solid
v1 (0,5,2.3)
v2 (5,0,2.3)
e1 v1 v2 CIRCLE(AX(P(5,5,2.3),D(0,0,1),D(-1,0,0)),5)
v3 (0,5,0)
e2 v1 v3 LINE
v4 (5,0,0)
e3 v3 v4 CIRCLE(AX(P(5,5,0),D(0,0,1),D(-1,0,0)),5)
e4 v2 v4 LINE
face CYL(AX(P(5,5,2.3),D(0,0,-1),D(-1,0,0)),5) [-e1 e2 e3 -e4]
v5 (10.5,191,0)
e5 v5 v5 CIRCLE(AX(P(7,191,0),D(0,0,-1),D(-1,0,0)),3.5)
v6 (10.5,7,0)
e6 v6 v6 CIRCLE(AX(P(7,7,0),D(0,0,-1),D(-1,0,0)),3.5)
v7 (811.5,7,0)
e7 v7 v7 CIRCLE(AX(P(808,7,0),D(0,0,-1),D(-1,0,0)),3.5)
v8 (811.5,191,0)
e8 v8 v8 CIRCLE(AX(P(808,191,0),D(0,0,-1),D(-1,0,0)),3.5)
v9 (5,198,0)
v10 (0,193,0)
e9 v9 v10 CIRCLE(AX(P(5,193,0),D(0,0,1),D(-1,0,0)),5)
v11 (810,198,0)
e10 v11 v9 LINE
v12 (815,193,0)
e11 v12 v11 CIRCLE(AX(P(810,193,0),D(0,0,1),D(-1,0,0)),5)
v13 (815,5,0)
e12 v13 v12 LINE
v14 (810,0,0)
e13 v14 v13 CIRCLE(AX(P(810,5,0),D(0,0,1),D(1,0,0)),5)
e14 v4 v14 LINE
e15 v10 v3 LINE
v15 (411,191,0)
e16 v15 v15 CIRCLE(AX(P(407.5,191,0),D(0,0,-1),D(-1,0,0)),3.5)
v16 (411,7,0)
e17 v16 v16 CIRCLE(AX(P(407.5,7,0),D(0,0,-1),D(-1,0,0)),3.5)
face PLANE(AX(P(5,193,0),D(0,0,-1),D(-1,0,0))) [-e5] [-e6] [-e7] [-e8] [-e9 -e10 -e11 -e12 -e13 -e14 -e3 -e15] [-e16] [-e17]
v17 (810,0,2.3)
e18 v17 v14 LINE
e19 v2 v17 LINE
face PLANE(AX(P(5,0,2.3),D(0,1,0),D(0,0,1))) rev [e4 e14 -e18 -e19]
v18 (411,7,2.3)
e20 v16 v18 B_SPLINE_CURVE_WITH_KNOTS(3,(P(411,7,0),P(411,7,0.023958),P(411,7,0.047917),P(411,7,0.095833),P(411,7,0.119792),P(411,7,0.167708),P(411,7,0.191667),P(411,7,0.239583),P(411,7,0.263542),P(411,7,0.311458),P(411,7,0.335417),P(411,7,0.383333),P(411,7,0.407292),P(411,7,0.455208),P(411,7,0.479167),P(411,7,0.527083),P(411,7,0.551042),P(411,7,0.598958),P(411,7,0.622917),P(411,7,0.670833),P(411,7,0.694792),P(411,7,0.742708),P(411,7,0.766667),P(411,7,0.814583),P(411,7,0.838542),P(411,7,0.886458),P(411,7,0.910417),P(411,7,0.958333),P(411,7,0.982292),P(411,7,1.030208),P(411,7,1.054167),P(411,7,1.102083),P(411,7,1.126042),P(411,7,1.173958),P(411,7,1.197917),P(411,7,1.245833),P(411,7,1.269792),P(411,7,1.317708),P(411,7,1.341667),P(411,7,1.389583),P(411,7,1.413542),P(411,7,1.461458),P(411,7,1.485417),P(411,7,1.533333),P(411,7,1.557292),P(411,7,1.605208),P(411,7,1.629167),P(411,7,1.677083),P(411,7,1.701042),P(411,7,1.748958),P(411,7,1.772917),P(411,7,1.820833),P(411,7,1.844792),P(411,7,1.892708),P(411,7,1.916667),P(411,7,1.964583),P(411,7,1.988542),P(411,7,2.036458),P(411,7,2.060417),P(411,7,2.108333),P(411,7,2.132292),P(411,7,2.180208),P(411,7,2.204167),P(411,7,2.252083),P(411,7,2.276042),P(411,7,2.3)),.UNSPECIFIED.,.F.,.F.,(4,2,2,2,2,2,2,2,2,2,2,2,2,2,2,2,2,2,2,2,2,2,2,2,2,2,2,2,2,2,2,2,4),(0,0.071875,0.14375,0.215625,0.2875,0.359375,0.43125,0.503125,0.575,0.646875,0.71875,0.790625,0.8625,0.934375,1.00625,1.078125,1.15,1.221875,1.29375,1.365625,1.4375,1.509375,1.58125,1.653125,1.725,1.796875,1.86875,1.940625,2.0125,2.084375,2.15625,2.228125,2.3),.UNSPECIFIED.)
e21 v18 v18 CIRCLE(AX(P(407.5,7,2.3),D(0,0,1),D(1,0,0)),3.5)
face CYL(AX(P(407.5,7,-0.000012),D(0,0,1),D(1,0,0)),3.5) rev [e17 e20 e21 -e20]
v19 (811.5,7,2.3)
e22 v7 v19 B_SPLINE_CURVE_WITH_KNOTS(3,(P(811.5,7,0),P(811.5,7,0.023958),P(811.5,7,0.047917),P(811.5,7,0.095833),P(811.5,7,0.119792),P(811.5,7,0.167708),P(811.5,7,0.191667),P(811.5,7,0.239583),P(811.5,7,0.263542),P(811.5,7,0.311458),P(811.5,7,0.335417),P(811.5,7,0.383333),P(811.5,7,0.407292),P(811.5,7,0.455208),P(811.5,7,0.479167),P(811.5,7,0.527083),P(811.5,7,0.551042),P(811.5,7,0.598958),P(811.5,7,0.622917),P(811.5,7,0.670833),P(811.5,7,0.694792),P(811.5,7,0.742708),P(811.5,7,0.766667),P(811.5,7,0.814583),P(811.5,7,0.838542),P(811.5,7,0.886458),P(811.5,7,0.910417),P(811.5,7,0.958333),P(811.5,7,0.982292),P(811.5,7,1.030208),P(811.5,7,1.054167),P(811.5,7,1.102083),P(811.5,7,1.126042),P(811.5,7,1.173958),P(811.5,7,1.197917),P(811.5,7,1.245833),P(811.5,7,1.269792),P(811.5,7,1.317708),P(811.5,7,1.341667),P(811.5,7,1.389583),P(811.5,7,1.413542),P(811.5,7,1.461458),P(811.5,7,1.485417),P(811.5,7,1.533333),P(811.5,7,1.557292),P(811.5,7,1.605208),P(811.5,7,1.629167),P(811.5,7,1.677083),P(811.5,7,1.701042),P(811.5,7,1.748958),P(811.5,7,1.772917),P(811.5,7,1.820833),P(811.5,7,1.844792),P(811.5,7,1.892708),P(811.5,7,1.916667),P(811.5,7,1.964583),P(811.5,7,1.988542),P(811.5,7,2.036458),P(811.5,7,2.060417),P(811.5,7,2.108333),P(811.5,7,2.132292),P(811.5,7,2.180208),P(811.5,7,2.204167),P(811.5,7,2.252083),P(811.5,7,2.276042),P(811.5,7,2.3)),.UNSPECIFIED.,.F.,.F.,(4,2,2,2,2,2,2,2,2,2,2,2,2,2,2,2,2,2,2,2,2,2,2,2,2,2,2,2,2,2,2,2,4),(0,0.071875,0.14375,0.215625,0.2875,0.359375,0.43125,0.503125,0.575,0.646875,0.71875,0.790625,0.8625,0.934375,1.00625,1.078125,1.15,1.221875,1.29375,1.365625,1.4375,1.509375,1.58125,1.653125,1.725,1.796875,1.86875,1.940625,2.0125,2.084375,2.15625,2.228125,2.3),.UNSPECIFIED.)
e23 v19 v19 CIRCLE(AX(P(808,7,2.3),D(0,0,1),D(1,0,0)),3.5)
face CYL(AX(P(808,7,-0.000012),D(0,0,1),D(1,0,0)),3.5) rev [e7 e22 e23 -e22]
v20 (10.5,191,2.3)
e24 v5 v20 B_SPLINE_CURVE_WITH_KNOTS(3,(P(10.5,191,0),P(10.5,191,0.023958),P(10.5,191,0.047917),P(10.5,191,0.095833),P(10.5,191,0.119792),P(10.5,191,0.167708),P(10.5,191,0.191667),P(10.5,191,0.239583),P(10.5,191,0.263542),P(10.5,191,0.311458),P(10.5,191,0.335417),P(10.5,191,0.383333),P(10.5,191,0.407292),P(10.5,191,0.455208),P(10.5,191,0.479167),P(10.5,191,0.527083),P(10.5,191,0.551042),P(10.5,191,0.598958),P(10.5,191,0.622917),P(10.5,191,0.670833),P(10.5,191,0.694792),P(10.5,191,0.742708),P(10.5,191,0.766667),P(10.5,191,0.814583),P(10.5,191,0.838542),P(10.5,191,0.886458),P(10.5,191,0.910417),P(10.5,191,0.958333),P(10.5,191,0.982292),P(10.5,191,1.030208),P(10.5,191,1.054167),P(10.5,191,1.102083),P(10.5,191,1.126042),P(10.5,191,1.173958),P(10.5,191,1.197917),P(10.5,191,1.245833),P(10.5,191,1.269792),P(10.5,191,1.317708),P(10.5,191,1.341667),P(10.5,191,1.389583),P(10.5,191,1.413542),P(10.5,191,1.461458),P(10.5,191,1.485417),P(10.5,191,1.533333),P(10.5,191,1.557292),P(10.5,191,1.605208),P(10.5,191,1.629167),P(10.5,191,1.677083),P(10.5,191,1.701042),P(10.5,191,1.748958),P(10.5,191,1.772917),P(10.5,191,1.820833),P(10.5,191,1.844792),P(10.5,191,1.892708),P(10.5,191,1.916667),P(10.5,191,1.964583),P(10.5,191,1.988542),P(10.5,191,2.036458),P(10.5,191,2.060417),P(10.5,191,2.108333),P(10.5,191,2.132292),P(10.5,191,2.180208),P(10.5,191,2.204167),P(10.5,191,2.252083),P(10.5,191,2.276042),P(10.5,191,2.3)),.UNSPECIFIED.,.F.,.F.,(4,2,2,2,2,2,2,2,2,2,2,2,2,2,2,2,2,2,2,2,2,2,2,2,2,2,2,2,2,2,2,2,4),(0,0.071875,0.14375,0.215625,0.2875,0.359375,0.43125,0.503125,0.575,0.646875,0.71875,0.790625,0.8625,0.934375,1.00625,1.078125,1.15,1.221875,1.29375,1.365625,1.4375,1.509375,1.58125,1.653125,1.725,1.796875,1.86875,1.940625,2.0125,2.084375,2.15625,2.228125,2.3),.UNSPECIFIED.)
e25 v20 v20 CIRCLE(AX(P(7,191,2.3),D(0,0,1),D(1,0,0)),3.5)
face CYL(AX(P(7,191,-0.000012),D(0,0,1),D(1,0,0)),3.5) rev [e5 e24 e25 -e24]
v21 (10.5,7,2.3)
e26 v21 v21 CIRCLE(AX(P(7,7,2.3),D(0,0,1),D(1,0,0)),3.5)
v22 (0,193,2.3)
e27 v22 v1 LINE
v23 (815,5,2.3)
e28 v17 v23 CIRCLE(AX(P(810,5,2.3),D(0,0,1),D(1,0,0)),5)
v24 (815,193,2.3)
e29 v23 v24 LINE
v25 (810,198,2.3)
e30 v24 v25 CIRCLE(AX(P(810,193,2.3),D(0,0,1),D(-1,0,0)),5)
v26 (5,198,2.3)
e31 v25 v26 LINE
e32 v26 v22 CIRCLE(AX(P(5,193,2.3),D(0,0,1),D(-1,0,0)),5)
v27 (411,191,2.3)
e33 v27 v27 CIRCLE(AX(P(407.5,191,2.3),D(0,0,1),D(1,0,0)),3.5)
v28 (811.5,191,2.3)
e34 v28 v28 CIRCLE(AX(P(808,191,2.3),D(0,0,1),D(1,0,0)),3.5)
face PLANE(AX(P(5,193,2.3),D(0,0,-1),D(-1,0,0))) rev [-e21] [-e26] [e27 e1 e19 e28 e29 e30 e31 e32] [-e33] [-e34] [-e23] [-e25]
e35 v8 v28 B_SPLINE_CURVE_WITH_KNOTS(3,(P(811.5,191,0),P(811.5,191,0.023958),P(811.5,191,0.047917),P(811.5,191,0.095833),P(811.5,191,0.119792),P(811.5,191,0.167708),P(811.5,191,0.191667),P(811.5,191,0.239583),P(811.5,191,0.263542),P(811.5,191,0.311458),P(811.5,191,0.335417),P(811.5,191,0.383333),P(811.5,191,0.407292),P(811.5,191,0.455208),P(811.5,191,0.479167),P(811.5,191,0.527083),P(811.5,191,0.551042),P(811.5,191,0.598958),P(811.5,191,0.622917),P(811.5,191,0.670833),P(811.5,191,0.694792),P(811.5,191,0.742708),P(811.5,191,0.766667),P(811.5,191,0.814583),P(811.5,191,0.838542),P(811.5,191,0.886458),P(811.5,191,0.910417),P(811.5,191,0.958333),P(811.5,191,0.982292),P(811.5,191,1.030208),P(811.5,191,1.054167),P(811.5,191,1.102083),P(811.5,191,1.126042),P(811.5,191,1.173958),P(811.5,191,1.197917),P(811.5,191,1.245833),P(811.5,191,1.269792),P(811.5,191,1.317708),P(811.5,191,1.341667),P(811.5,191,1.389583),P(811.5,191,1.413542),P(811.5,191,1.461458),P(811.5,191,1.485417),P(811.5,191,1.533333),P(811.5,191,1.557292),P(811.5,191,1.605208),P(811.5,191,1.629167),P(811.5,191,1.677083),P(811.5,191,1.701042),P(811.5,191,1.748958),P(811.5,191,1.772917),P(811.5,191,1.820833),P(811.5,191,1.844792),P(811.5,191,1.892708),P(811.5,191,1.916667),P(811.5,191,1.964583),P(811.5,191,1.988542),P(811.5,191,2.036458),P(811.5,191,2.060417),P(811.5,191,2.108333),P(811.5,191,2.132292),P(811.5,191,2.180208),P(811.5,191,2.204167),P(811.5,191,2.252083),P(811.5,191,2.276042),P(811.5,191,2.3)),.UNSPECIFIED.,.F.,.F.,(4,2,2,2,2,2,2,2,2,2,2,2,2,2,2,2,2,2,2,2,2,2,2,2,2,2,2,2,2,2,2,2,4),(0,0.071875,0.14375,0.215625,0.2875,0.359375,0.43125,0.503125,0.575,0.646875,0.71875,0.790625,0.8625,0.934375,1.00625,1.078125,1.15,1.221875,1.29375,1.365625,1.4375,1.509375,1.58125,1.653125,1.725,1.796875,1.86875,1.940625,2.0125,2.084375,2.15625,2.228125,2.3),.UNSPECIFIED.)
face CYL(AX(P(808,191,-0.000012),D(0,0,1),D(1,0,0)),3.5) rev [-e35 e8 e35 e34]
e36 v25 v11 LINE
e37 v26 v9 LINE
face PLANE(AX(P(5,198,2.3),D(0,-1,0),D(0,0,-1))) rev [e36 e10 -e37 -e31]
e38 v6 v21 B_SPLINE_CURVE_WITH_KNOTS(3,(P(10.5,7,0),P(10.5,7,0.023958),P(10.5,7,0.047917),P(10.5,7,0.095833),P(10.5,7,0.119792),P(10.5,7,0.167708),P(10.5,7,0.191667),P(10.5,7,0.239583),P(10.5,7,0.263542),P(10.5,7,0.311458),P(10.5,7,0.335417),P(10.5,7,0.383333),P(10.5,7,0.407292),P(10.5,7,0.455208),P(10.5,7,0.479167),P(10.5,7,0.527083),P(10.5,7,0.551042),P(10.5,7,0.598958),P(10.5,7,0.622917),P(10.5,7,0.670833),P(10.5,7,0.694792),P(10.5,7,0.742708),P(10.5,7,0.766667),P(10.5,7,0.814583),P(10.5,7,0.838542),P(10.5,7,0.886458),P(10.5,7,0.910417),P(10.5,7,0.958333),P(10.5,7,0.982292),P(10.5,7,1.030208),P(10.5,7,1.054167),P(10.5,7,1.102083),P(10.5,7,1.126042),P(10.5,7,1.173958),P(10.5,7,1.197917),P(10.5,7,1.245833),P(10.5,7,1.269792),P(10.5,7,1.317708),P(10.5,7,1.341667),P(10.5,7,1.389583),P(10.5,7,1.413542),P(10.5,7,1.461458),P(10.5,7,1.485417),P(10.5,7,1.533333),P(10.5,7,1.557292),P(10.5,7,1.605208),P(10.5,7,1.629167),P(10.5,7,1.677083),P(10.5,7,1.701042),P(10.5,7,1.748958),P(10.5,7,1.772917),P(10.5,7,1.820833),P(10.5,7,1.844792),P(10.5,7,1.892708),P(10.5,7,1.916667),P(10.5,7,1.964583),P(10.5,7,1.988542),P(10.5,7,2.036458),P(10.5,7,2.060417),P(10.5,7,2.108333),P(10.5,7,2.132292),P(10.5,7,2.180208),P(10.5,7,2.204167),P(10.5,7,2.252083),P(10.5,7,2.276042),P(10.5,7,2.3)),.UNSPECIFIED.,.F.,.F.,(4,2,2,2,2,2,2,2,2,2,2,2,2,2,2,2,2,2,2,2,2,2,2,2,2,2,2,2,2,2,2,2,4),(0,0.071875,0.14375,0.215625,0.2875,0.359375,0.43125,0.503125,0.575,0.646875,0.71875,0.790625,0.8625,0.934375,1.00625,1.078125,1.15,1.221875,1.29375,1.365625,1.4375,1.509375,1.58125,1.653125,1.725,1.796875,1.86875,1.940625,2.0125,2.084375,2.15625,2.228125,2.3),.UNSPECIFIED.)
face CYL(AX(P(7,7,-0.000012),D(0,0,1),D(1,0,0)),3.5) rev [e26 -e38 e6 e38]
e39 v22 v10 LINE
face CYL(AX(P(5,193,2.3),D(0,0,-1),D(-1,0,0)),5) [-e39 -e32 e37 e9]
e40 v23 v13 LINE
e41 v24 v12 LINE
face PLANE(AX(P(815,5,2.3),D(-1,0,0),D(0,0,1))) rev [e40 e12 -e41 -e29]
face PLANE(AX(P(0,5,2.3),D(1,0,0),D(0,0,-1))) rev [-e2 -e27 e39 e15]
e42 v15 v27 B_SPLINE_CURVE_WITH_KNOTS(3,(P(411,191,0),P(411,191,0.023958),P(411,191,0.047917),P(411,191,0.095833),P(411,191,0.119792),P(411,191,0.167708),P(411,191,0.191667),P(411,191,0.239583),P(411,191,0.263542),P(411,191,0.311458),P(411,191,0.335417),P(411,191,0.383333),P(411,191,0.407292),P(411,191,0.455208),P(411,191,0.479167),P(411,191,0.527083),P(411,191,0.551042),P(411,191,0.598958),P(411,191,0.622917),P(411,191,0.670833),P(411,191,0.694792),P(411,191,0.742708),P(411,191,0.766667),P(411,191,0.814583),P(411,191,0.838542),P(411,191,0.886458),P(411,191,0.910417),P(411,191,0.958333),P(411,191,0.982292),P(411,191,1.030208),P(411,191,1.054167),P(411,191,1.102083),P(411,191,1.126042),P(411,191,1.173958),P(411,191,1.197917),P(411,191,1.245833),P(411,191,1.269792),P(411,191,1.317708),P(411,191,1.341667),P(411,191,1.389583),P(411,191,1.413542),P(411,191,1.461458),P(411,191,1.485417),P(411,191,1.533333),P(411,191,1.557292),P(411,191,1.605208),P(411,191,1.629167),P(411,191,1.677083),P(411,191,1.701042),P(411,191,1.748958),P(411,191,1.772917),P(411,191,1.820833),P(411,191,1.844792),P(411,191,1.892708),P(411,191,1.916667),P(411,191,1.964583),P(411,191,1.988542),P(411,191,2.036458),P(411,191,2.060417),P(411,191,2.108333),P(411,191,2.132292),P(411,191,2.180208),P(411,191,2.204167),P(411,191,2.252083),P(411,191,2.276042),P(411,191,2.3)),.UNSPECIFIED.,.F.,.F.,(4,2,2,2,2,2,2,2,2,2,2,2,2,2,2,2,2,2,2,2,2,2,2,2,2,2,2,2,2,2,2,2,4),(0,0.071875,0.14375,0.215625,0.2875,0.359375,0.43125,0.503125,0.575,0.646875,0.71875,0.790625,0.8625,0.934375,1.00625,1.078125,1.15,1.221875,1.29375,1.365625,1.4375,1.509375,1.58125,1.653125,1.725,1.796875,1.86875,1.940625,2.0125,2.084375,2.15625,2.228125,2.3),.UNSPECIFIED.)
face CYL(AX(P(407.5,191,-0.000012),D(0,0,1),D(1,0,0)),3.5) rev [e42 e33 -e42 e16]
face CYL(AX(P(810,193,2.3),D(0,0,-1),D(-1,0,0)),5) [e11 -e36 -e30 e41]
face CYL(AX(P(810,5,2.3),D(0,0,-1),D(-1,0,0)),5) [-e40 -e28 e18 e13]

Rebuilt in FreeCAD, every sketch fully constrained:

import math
import FreeCAD as App
import Part
import Sketcher

V = App.Vector

doc = App.newDocument("Part")
body = doc.addObject("PartDesign::Body", "Body")

# Sketch on XY plane
sketch1 = body.newObject("Sketcher::SketchObject", "Sketch")
sketch1.AttachmentSupport = (doc.getObject("XY_Plane"), [""])
sketch1.MapMode = "FlatFace"
sketch1.addGeometry(Part.LineSegment(V(5, 0, 0), V(810, 0, 0)), False)
sketch1.addGeometry(Part.ArcOfCircle(Part.Circle(V(810, 5, 0), V(0, 0, 1), 5), math.radians(-90), math.radians(0)), False)
sketch1.addGeometry(Part.LineSegment(V(815, 5, 0), V(815, 193, 0)), False)
sketch1.addGeometry(Part.ArcOfCircle(Part.Circle(V(810, 193, 0), V(0, 0, 1), 5), math.radians(0), math.radians(90)), False)
sketch1.addGeometry(Part.LineSegment(V(810, 198, 0), V(5, 198, 0)), False)
sketch1.addGeometry(Part.ArcOfCircle(Part.Circle(V(5, 193, 0), V(0, 0, 1), 5), math.radians(90), math.radians(180)), False)
sketch1.addGeometry(Part.LineSegment(V(0, 193, 0), V(0, 5, 0)), False)
sketch1.addGeometry(Part.ArcOfCircle(Part.Circle(V(5, 5, 0), V(0, 0, 1), 5), math.radians(180), math.radians(270)), False)
sketch1.addConstraint(Sketcher.Constraint("Tangent", 0, 2, 1, 1))
sketch1.addConstraint(Sketcher.Constraint("Tangent", 1, 2, 2, 1))
sketch1.addConstraint(Sketcher.Constraint("Tangent", 2, 2, 3, 1))
sketch1.addConstraint(Sketcher.Constraint("Tangent", 3, 2, 4, 1))
sketch1.addConstraint(Sketcher.Constraint("Tangent", 4, 2, 5, 1))
sketch1.addConstraint(Sketcher.Constraint("Tangent", 5, 2, 6, 1))
sketch1.addConstraint(Sketcher.Constraint("Tangent", 6, 2, 7, 1))
sketch1.addConstraint(Sketcher.Constraint("Tangent", 7, 2, 0, 1))
sketch1.addConstraint(Sketcher.Constraint("Horizontal", 0))
sketch1.addConstraint(Sketcher.Constraint("Vertical", 2))
sketch1.addConstraint(Sketcher.Constraint("Horizontal", 4))
sketch1.addConstraint(Sketcher.Constraint("Vertical", 6))
sketch1.addConstraint(Sketcher.Constraint("Equal", 1, 3))
sketch1.addConstraint(Sketcher.Constraint("Equal", 3, 5))
sketch1.addConstraint(Sketcher.Constraint("Equal", 5, 7))
sketch1.addConstraint(Sketcher.Constraint("PointOnObject", 0, 2, -1))
sketch1.addConstraint(Sketcher.Constraint("PointOnObject", 5, 2, -2))
sketch1.addConstraint(Sketcher.Constraint("Radius", 1, 5.0))
sketch1.addConstraint(Sketcher.Constraint("DistanceX", 0, 1, 0, 2, 805.0))
sketch1.addConstraint(Sketcher.Constraint("DistanceY", 2, 1, 2, 2, 188.0))
pad1 = body.newObject("PartDesign::Pad", "Pad")
pad1.Profile = sketch1
pad1.Length = 2.3

# Sketch on XY plane
sketch2 = body.newObject("Sketcher::SketchObject", "Sketch001")
sketch2.AttachmentSupport = (doc.getObject("XY_Plane"), [""])
sketch2.MapMode = "FlatFace"
sketch2.addGeometry(Part.Circle(V(7, 7, 0), V(0, 0, 1), 3.5), False)
sketch2.addGeometry(Part.Circle(V(7, 191, 0), V(0, 0, 1), 3.5), False)
sketch2.addGeometry(Part.Circle(V(407.5, 7, 0), V(0, 0, 1), 3.5), False)
sketch2.addGeometry(Part.Circle(V(407.5, 191, 0), V(0, 0, 1), 3.5), False)
sketch2.addGeometry(Part.Circle(V(808, 7, 0), V(0, 0, 1), 3.5), False)
sketch2.addGeometry(Part.Circle(V(808, 191, 0), V(0, 0, 1), 3.5), False)
sketch2.addConstraint(Sketcher.Constraint("Equal", 0, 1))
sketch2.addConstraint(Sketcher.Constraint("Equal", 1, 2))
sketch2.addConstraint(Sketcher.Constraint("Equal", 2, 3))
sketch2.addConstraint(Sketcher.Constraint("Equal", 3, 4))
sketch2.addConstraint(Sketcher.Constraint("Equal", 4, 5))
sketch2.addConstraint(Sketcher.Constraint("Horizontal", 0, 3, 2, 3))
sketch2.addConstraint(Sketcher.Constraint("Horizontal", 1, 3, 3, 3))
sketch2.addConstraint(Sketcher.Constraint("Horizontal", 2, 3, 4, 3))
sketch2.addConstraint(Sketcher.Constraint("Horizontal", 3, 3, 5, 3))
sketch2.addConstraint(Sketcher.Constraint("Vertical", 0, 3, 1, 3))
sketch2.addConstraint(Sketcher.Constraint("Vertical", 2, 3, 3, 3))
sketch2.addConstraint(Sketcher.Constraint("Vertical", 4, 3, 5, 3))
sketch2.addConstraint(Sketcher.Constraint("Diameter", 0, 7.0))
sketch2.addConstraint(Sketcher.Constraint("DistanceX", -1, 1, 0, 3, 7.0))
sketch2.addConstraint(Sketcher.Constraint("DistanceY", -1, 1, 0, 3, 7.0))
sketch2.addConstraint(Sketcher.Constraint("DistanceY", -1, 1, 1, 3, 191.0))
sketch2.addConstraint(Sketcher.Constraint("DistanceX", -1, 1, 4, 3, 808.0))
sketch2.addConstraint(Sketcher.Constraint("DistanceX", -1, 1, 2, 3, 407.5))
pocket1 = body.newObject("PartDesign::Pocket", "Pocket")
pocket1.Profile = sketch2
pocket1.Type = "ThroughAll"
pocket1.Midplane = True

doc.recompute()
